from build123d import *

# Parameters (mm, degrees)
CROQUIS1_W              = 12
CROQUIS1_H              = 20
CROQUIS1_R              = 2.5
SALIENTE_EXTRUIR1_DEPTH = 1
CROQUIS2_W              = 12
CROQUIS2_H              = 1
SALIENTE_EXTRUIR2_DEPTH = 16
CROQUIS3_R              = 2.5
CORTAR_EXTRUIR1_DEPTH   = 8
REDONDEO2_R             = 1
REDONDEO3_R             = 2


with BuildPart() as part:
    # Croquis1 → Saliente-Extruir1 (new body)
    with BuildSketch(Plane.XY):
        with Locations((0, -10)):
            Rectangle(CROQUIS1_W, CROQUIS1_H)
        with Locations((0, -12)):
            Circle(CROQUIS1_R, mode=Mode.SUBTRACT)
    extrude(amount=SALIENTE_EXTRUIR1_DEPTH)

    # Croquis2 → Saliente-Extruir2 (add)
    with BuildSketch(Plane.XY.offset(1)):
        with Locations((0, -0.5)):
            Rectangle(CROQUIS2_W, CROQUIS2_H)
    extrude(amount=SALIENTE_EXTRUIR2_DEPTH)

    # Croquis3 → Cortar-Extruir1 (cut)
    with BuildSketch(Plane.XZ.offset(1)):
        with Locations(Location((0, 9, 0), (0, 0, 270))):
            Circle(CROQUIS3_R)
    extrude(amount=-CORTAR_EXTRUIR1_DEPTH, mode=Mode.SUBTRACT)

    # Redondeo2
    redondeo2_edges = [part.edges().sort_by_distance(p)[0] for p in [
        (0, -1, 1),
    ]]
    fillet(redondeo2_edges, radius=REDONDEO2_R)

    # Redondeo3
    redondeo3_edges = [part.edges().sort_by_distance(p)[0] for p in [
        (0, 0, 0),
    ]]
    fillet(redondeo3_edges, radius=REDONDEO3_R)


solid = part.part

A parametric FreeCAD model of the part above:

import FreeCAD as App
import Part
import Sketcher
from FreeCAD import Vector
Q = App.Units.Quantity


def edges_at(feature, points):
    """Names of the edges that pass closest to the given points."""
    edges = feature.Shape.Edges
    near = lambda p: min(range(len(edges)), key=lambda i: edges[i].distToShape(Part.Vertex(*p))[0])
    return sorted({f"Edge{near(p) + 1}" for p in points})


def add_polygon(sketch, points):
    """Adds a closed chain of lines whose ends are joined by coincident constraints."""
    first, n = sketch.GeometryCount, len(points)
    for a, b in zip(points, points[1:] + points[:1]):
        sketch.addGeometry(Part.LineSegment(App.Vector(*a, 0), App.Vector(*b, 0)), False)
    for i in range(n):
        sketch.addConstraint(Sketcher.Constraint("Coincident", first + i, 2, first + (i + 1) % n, 1))

doc = App.newDocument("Part")
body = doc.addObject("PartDesign::Body", "Body")

# Sketch on XY plane
sketch1 = body.newObject("Sketcher::SketchObject", "Sketch")
sketch1.AttachmentSupport = (doc.getObject("XY_Plane"), [""])
sketch1.MapMode = "FlatFace"
add_polygon(sketch1, [(-6, 0), (-6, -20), (6, -20), (6, 0)])  # lines 0-3
sketch1.addGeometry(Part.Circle(Vector(0, -12, 0), Vector(0, 0, 1), 2.5), False)  # 4
sketch1.addConstraint([
    Sketcher.Constraint("Vertical", 0),
    Sketcher.Constraint("Horizontal", 1),
    Sketcher.Constraint("Vertical", 2),
    Sketcher.Constraint("Horizontal", 3),
    Sketcher.Constraint("Symmetric", 2, 2, 3, 2, -1, 1),
    Sketcher.Constraint("PointOnObject", 4, 3, -2),
    Sketcher.Constraint("Diameter", 4, Q("5 mm")),
    Sketcher.Constraint("DistanceX", 1, 1, 1, 2, Q("12 mm")),
    Sketcher.Constraint("DistanceY", 0, 2, 0, 1, Q("20 mm")),
    Sketcher.Constraint("DistanceY", 4, 3, -1, 1, Q("12 mm")),
])
pad1 = body.newObject("PartDesign::Pad", "Pad")
pad1.Profile = sketch1
pad1.Length = 1

# Sketch on XY plane
sketch2 = body.newObject("Sketcher::SketchObject", "Sketch001")
sketch2.AttachmentSupport = (doc.getObject("XY_Plane"), [""])
sketch2.MapMode = "FlatFace"
sketch2.AttachmentOffset = App.Placement(Vector(0, 0, 1), App.Rotation())
add_polygon(sketch2, [(-6, 0), (-6, -1), (6, -1), (6, 0)])  # lines 0-3
sketch2.addConstraint([
    Sketcher.Constraint("Vertical", 0),
    Sketcher.Constraint("Horizontal", 1),
    Sketcher.Constraint("Vertical", 2),
    Sketcher.Constraint("Horizontal", 3),
    Sketcher.Constraint("Symmetric", 2, 2, 3, 2, -1, 1),
    Sketcher.Constraint("DistanceX", 1, 1, 1, 2, Q("12 mm")),
    Sketcher.Constraint("DistanceY", 0, 2, 0, 1, Q("1 mm")),
])
pad2 = body.newObject("PartDesign::Pad", "Pad001")
pad2.Profile = sketch2
pad2.Length = 16

# Sketch on XZ plane
sketch3 = body.newObject("Sketcher::SketchObject", "Sketch002")
sketch3.AttachmentSupport = (doc.getObject("XZ_Plane"), [""])
sketch3.MapMode = "FlatFace"
sketch3.AttachmentOffset = App.Placement(Vector(0, 0, 1), App.Rotation())
sketch3.addGeometry(Part.Circle(Vector(0, 9, 0), Vector(0, 0, 1), 2.5), False)
sketch3.addConstraint([
    Sketcher.Constraint("PointOnObject", 0, 3, -2),
    Sketcher.Constraint("Diameter", 0, Q("5 mm")),
    Sketcher.Constraint("DistanceY", -1, 1, 0, 3, Q("9 mm")),
])
pocket1 = body.newObject("PartDesign::Pocket", "Pocket")
pocket1.Profile = sketch3
pocket1.Length = 8
doc.recompute()

fillet = body.newObject("PartDesign::Fillet", "Fillet")
fillet.Base = (pocket1, edges_at(pocket1, [(0, -1, 1)]))
fillet.Radius = 1
doc.recompute()

fillet2 = body.newObject("PartDesign::Fillet", "Fillet001")
fillet2.Base = (fillet, edges_at(fillet, [(0, 0, 0)]))
fillet2.Radius = 2

doc.recompute()
